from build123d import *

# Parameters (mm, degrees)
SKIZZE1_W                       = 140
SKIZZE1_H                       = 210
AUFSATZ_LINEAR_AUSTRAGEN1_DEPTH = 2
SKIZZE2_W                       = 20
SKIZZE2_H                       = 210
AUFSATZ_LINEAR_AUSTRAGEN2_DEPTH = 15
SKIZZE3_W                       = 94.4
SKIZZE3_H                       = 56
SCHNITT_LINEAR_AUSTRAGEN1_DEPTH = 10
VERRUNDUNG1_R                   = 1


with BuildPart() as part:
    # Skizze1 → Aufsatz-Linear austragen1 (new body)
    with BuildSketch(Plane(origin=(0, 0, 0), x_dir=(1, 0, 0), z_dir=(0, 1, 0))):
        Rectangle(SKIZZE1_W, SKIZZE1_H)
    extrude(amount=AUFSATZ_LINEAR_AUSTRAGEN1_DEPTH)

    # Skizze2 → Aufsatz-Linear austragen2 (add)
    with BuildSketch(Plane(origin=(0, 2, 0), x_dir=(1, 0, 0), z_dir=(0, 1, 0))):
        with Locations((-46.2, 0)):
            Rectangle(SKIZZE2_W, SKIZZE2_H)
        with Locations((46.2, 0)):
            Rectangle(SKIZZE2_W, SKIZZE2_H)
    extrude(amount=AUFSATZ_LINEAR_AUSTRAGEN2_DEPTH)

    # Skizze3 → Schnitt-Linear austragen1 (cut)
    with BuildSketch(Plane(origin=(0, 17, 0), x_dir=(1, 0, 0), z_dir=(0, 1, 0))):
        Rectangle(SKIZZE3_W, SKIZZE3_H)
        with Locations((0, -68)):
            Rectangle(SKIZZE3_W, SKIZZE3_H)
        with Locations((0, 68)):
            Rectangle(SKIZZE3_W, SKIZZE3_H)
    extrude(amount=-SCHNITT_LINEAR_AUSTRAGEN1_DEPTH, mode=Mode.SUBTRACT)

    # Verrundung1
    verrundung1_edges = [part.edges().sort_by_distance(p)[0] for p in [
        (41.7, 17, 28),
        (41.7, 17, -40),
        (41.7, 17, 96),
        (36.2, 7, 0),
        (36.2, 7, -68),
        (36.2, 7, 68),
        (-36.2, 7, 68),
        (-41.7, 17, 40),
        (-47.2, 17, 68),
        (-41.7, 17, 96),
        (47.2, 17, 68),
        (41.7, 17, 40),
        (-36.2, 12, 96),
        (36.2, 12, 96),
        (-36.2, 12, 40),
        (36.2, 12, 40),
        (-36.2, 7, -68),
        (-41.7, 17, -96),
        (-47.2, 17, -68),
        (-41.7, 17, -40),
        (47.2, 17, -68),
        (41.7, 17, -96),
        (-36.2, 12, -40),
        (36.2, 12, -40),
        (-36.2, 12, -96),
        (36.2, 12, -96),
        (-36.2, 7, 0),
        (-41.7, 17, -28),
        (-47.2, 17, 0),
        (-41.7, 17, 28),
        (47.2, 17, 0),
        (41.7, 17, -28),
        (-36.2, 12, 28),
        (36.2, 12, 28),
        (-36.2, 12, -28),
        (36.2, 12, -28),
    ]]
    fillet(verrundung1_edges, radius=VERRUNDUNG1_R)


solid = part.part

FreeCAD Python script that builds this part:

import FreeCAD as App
import Part
import Sketcher


def edges_at(feature, points):
    """Names of the edges that pass closest to the given points."""
    edges = feature.Shape.Edges
    near = lambda p: min(range(len(edges)), key=lambda i: edges[i].distToShape(Part.Vertex(*p))[0])
    return sorted({f"Edge{near(p) + 1}" for p in points})

doc = App.newDocument("Part")
body = doc.addObject("PartDesign::Body", "Body")

# Sketch on XZ plane
sketch1 = body.newObject("Sketcher::SketchObject", "Sketch")
sketch1.AttachmentSupport = (doc.getObject("XZ_Plane"), [""])
sketch1.MapMode = "FlatFace"
sketch1.addGeometry([
    Part.LineSegment(App.Vector(-70, -105, 0), App.Vector(-70, 105, 0)),
    Part.LineSegment(App.Vector(-70, 105, 0), App.Vector(70, 105, 0)),
    Part.LineSegment(App.Vector(70, 105, 0), App.Vector(70, -105, 0)),
    Part.LineSegment(App.Vector(70, -105, 0), App.Vector(-70, -105, 0)),
], False)
sketch1.addConstraint([
    Sketcher.Constraint("Coincident", 0, 2, 1, 1),
    Sketcher.Constraint("Coincident", 1, 2, 2, 1),
    Sketcher.Constraint("Coincident", 2, 2, 3, 1),
    Sketcher.Constraint("Coincident", 3, 2, 0, 1),
    Sketcher.Constraint("Vertical", 0),
    Sketcher.Constraint("Horizontal", 1),
    Sketcher.Constraint("Vertical", 2),
    Sketcher.Constraint("Horizontal", 3),
    Sketcher.Constraint("Symmetric", 0, 2, 2, 2, -1, 1),
    Sketcher.Constraint("DistanceX", 1, 1, 1, 2, 140.0),
    Sketcher.Constraint("DistanceY", 0, 1, 0, 2, 210.0),
])
pad1 = body.newObject("PartDesign::Pad", "Pad")
pad1.Profile = sketch1
pad1.Length = 2
pad1.Reversed = True

# Sketch on XZ plane
sketch2 = body.newObject("Sketcher::SketchObject", "Sketch001")
sketch2.AttachmentSupport = (doc.getObject("XZ_Plane"), [""])
sketch2.MapMode = "FlatFace"
sketch2.AttachmentOffset = App.Placement(App.Vector(0, 0, -2), App.Rotation())
sketch2.addGeometry([
    Part.LineSegment(App.Vector(-56, -105, 0), App.Vector(-56, 105, 0)),  # 0
    Part.LineSegment(App.Vector(-56, 105, 0), App.Vector(-36, 105, 0)),  # 1
    Part.LineSegment(App.Vector(-36, 105, 0), App.Vector(-36, -105, 0)),  # 2
    Part.LineSegment(App.Vector(-36, -105, 0), App.Vector(-56, -105, 0)),  # 3
    Part.LineSegment(App.Vector(36, -105, 0), App.Vector(36, 105, 0)),  # 4
    Part.LineSegment(App.Vector(36, 105, 0), App.Vector(56, 105, 0)),  # 5
    Part.LineSegment(App.Vector(56, 105, 0), App.Vector(56, -105, 0)),  # 6
    Part.LineSegment(App.Vector(56, -105, 0), App.Vector(36, -105, 0)),  # 7
], False)
sketch2.addConstraint([
    Sketcher.Constraint("Coincident", 0, 2, 1, 1),
    Sketcher.Constraint("Coincident", 1, 2, 2, 1),
    Sketcher.Constraint("Coincident", 2, 2, 3, 1),
    Sketcher.Constraint("Coincident", 3, 2, 0, 1),
    Sketcher.Constraint("Coincident", 4, 2, 5, 1),
    Sketcher.Constraint("Coincident", 5, 2, 6, 1),
    Sketcher.Constraint("Coincident", 6, 2, 7, 1),
    Sketcher.Constraint("Coincident", 7, 2, 4, 1),
    Sketcher.Constraint("Vertical", 0),
    Sketcher.Constraint("Horizontal", 1),
    Sketcher.Constraint("Vertical", 2),
    Sketcher.Constraint("Horizontal", 3),
    Sketcher.Constraint("Vertical", 4),
    Sketcher.Constraint("Horizontal", 5),
    Sketcher.Constraint("Vertical", 6),
    Sketcher.Constraint("Horizontal", 7),
    Sketcher.Constraint("Symmetric", 2, 2, 4, 2, -1, 1),
    Sketcher.Constraint("Symmetric", 0, 2, 6, 2, -1, 1),
    Sketcher.Constraint("Horizontal", 1, 2, 4, 2),
    Sketcher.Constraint("DistanceX", 1, 1, 1, 2, 20.0),
    Sketcher.Constraint("DistanceY", 0, 1, 0, 2, 210.0),
    Sketcher.Constraint("DistanceX", 0, 2, -1, 1, 56.2),
])
pad2 = body.newObject("PartDesign::Pad", "Pad001")
pad2.Profile = sketch2
pad2.Length = 15
pad2.Reversed = True

# Sketch on XZ plane
sketch3 = body.newObject("Sketcher::SketchObject", "Sketch002")
sketch3.AttachmentSupport = (doc.getObject("XZ_Plane"), [""])
sketch3.MapMode = "FlatFace"
sketch3.AttachmentOffset = App.Placement(App.Vector(0, 0, -17), App.Rotation())
sketch3.addGeometry([
    Part.LineSegment(App.Vector(-47, -28, 0), App.Vector(-47, 28, 0)),  # 0
    Part.LineSegment(App.Vector(-47, 28, 0), App.Vector(47, 28, 0)),  # 1
    Part.LineSegment(App.Vector(47, 28, 0), App.Vector(47, -28, 0)),  # 2
    Part.LineSegment(App.Vector(47, -28, 0), App.Vector(-47, -28, 0)),  # 3
    Part.LineSegment(App.Vector(-47, 40, 0), App.Vector(-47, 96, 0)),  # 4
    Part.LineSegment(App.Vector(-47, 96, 0), App.Vector(47, 96, 0)),  # 5
    Part.LineSegment(App.Vector(47, 96, 0), App.Vector(47, 40, 0)),  # 6
    Part.LineSegment(App.Vector(47, 40, 0), App.Vector(-47, 40, 0)),  # 7
    Part.LineSegment(App.Vector(-47, -96, 0), App.Vector(-47, -40, 0)),  # 8
    Part.LineSegment(App.Vector(-47, -40, 0), App.Vector(47, -40, 0)),  # 9
    Part.LineSegment(App.Vector(47, -40, 0), App.Vector(47, -96, 0)),  # 10
    Part.LineSegment(App.Vector(47, -96, 0), App.Vector(-47, -96, 0)),  # 11
], False)
sketch3.addConstraint([
    Sketcher.Constraint("Coincident", 0, 2, 1, 1),
    Sketcher.Constraint("Coincident", 1, 2, 2, 1),
    Sketcher.Constraint("Coincident", 2, 2, 3, 1),
    Sketcher.Constraint("Coincident", 3, 2, 0, 1),
    Sketcher.Constraint("Coincident", 4, 2, 5, 1),
    Sketcher.Constraint("Coincident", 5, 2, 6, 1),
    Sketcher.Constraint("Coincident", 6, 2, 7, 1),
    Sketcher.Constraint("Coincident", 7, 2, 4, 1),
    Sketcher.Constraint("Coincident", 8, 2, 9, 1),
    Sketcher.Constraint("Coincident", 9, 2, 10, 1),
    Sketcher.Constraint("Coincident", 10, 2, 11, 1),
    Sketcher.Constraint("Coincident", 11, 2, 8, 1),
    Sketcher.Constraint("Vertical", 0),
    Sketcher.Constraint("Horizontal", 1),
    Sketcher.Constraint("Vertical", 2),
    Sketcher.Constraint("Horizontal", 3),
    Sketcher.Constraint("Vertical", 4),
    Sketcher.Constraint("Horizontal", 5),
    Sketcher.Constraint("Vertical", 6),
    Sketcher.Constraint("Horizontal", 7),
    Sketcher.Constraint("Vertical", 8),
    Sketcher.Constraint("Horizontal", 9),
    Sketcher.Constraint("Vertical", 10),
    Sketcher.Constraint("Horizontal", 11),
    Sketcher.Constraint("Symmetric", 0, 2, 2, 2, -1, 1),
    Sketcher.Constraint("Symmetric", 6, 2, 8, 2, -1, 1),
    Sketcher.Constraint("Symmetric", 4, 2, 10, 2, -1, 1),
    Sketcher.Constraint("Vertical", 3, 2, 4, 2),
    Sketcher.Constraint("Vertical", 2, 2, 5, 2),
    Sketcher.Constraint("Equal", 2, 4),
    Sketcher.Constraint("DistanceY", 0, 1, 0, 2, 56.0),
    Sketcher.Constraint("DistanceX", 1, 1, 1, 2, 94.4),
    Sketcher.Constraint("DistanceY", -1, 1, 4, 2, 96.0),
])
pocket1 = body.newObject("PartDesign::Pocket", "Pocket")
pocket1.Profile = sketch3
pocket1.Length = 10
pocket1.Reversed = True
doc.recompute()

fillet = body.newObject("PartDesign::Fillet", "Fillet")
fillet.Base = (pocket1, edges_at(pocket1, [
    (41.7, 17, 28),
    (41.7, 17, -40),
    (41.7, 17, 96),
    (36.2, 7, 0),
    (36.2, 7, -68),
    (36.2, 7, 68),
    (-36.2, 7, 68),
    (-41.7, 17, 40),
    (-47.2, 17, 68),
    (-41.7, 17, 96),
    (47.2, 17, 68),
    (41.7, 17, 40),
    (-36.2, 12, 96),
    (36.2, 12, 96),
    (-36.2, 12, 40),
    (36.2, 12, 40),
    (-36.2, 7, -68),
    (-41.7, 17, -96),
    (-47.2, 17, -68),
    (-41.7, 17, -40),
    (47.2, 17, -68),
    (41.7, 17, -96),
    (-36.2, 12, -40),
    (36.2, 12, -40),
    (-36.2, 12, -96),
    (36.2, 12, -96),
    (-36.2, 7, 0),
    (-41.7, 17, -28),
    (-47.2, 17, 0),
    (-41.7, 17, 28),
    (47.2, 17, 0),
    (41.7, 17, -28),
    (-36.2, 12, 28),
    (36.2, 12, 28),
    (-36.2, 12, -28),
    (36.2, 12, -28),
]))
fillet.Radius = 1

doc.recompute()
